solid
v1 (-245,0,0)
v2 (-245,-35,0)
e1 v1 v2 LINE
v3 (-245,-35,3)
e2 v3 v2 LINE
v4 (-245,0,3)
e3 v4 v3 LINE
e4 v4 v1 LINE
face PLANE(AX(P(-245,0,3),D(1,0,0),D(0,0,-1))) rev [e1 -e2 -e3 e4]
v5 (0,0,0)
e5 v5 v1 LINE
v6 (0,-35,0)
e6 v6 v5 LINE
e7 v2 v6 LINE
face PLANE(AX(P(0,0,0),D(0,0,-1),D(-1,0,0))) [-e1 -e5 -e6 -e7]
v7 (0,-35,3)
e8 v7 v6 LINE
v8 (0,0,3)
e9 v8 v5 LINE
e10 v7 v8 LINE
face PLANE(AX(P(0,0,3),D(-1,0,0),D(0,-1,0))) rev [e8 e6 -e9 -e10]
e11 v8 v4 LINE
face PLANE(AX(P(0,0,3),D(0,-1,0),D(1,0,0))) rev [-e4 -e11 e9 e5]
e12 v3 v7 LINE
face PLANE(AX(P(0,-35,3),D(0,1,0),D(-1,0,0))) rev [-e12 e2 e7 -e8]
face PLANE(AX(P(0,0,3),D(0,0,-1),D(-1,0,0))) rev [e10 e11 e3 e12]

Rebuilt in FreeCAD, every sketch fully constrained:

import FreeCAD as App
import Part
import Sketcher
Q = App.Units.Quantity


def add_polygon(sketch, points):
    """Adds a closed chain of lines whose ends are joined by coincident constraints."""
    first, n = sketch.GeometryCount, len(points)
    for a, b in zip(points, points[1:] + points[:1]):
        sketch.addGeometry(Part.LineSegment(App.Vector(*a, 0), App.Vector(*b, 0)), False)
    for i in range(n):
        sketch.addConstraint(Sketcher.Constraint("Coincident", first + i, 2, first + (i + 1) % n, 1))

doc = App.newDocument("Part")
params = doc.addObject("Spreadsheet::Sheet", "Params")
for row, (alias, value) in enumerate([
    ("sketch1_width", "245 mm"),
    ("sketch1_height", "35 mm"),
    ("pad1_length", "3 mm"),
], start=1):
    params.set(f"A{row}", alias)
    params.set(f"B{row}", "=" + value)
    params.setAlias(f"B{row}", alias)

body = doc.addObject("PartDesign::Body", "Body")

sketch1 = body.newObject("Sketcher::SketchObject", "Sketch")
sketch1.AttachmentSupport = (doc.getObject("XY_Plane"), [""])
sketch1.MapMode = "FlatFace"
add_polygon(sketch1, [(-245, 0), (-245, -35), (0, -35), (0, 0)])
sketch1.addConstraint(Sketcher.Constraint("Vertical", 0))
sketch1.addConstraint(Sketcher.Constraint("Horizontal", 1))
sketch1.addConstraint(Sketcher.Constraint("Vertical", 2))
sketch1.addConstraint(Sketcher.Constraint("Horizontal", 3))
sketch1.addConstraint(Sketcher.Constraint("Coincident", 2, 2, -1, 1))
sketch1.addConstraint(Sketcher.Constraint("DistanceX", 1, 1, 1, 2, Q("245 mm")))
sketch1.addConstraint(Sketcher.Constraint("DistanceY", 0, 2, 0, 1, Q("35 mm")))
sketch1.setExpression("Constraints[9]", "Params.sketch1_width")
sketch1.setExpression("Constraints[10]", "Params.sketch1_height")
pad1 = body.newObject("PartDesign::Pad", "Pad")
pad1.Profile = sketch1
pad1.setExpression("Length", "Params.pad1_length")

doc.recompute()
